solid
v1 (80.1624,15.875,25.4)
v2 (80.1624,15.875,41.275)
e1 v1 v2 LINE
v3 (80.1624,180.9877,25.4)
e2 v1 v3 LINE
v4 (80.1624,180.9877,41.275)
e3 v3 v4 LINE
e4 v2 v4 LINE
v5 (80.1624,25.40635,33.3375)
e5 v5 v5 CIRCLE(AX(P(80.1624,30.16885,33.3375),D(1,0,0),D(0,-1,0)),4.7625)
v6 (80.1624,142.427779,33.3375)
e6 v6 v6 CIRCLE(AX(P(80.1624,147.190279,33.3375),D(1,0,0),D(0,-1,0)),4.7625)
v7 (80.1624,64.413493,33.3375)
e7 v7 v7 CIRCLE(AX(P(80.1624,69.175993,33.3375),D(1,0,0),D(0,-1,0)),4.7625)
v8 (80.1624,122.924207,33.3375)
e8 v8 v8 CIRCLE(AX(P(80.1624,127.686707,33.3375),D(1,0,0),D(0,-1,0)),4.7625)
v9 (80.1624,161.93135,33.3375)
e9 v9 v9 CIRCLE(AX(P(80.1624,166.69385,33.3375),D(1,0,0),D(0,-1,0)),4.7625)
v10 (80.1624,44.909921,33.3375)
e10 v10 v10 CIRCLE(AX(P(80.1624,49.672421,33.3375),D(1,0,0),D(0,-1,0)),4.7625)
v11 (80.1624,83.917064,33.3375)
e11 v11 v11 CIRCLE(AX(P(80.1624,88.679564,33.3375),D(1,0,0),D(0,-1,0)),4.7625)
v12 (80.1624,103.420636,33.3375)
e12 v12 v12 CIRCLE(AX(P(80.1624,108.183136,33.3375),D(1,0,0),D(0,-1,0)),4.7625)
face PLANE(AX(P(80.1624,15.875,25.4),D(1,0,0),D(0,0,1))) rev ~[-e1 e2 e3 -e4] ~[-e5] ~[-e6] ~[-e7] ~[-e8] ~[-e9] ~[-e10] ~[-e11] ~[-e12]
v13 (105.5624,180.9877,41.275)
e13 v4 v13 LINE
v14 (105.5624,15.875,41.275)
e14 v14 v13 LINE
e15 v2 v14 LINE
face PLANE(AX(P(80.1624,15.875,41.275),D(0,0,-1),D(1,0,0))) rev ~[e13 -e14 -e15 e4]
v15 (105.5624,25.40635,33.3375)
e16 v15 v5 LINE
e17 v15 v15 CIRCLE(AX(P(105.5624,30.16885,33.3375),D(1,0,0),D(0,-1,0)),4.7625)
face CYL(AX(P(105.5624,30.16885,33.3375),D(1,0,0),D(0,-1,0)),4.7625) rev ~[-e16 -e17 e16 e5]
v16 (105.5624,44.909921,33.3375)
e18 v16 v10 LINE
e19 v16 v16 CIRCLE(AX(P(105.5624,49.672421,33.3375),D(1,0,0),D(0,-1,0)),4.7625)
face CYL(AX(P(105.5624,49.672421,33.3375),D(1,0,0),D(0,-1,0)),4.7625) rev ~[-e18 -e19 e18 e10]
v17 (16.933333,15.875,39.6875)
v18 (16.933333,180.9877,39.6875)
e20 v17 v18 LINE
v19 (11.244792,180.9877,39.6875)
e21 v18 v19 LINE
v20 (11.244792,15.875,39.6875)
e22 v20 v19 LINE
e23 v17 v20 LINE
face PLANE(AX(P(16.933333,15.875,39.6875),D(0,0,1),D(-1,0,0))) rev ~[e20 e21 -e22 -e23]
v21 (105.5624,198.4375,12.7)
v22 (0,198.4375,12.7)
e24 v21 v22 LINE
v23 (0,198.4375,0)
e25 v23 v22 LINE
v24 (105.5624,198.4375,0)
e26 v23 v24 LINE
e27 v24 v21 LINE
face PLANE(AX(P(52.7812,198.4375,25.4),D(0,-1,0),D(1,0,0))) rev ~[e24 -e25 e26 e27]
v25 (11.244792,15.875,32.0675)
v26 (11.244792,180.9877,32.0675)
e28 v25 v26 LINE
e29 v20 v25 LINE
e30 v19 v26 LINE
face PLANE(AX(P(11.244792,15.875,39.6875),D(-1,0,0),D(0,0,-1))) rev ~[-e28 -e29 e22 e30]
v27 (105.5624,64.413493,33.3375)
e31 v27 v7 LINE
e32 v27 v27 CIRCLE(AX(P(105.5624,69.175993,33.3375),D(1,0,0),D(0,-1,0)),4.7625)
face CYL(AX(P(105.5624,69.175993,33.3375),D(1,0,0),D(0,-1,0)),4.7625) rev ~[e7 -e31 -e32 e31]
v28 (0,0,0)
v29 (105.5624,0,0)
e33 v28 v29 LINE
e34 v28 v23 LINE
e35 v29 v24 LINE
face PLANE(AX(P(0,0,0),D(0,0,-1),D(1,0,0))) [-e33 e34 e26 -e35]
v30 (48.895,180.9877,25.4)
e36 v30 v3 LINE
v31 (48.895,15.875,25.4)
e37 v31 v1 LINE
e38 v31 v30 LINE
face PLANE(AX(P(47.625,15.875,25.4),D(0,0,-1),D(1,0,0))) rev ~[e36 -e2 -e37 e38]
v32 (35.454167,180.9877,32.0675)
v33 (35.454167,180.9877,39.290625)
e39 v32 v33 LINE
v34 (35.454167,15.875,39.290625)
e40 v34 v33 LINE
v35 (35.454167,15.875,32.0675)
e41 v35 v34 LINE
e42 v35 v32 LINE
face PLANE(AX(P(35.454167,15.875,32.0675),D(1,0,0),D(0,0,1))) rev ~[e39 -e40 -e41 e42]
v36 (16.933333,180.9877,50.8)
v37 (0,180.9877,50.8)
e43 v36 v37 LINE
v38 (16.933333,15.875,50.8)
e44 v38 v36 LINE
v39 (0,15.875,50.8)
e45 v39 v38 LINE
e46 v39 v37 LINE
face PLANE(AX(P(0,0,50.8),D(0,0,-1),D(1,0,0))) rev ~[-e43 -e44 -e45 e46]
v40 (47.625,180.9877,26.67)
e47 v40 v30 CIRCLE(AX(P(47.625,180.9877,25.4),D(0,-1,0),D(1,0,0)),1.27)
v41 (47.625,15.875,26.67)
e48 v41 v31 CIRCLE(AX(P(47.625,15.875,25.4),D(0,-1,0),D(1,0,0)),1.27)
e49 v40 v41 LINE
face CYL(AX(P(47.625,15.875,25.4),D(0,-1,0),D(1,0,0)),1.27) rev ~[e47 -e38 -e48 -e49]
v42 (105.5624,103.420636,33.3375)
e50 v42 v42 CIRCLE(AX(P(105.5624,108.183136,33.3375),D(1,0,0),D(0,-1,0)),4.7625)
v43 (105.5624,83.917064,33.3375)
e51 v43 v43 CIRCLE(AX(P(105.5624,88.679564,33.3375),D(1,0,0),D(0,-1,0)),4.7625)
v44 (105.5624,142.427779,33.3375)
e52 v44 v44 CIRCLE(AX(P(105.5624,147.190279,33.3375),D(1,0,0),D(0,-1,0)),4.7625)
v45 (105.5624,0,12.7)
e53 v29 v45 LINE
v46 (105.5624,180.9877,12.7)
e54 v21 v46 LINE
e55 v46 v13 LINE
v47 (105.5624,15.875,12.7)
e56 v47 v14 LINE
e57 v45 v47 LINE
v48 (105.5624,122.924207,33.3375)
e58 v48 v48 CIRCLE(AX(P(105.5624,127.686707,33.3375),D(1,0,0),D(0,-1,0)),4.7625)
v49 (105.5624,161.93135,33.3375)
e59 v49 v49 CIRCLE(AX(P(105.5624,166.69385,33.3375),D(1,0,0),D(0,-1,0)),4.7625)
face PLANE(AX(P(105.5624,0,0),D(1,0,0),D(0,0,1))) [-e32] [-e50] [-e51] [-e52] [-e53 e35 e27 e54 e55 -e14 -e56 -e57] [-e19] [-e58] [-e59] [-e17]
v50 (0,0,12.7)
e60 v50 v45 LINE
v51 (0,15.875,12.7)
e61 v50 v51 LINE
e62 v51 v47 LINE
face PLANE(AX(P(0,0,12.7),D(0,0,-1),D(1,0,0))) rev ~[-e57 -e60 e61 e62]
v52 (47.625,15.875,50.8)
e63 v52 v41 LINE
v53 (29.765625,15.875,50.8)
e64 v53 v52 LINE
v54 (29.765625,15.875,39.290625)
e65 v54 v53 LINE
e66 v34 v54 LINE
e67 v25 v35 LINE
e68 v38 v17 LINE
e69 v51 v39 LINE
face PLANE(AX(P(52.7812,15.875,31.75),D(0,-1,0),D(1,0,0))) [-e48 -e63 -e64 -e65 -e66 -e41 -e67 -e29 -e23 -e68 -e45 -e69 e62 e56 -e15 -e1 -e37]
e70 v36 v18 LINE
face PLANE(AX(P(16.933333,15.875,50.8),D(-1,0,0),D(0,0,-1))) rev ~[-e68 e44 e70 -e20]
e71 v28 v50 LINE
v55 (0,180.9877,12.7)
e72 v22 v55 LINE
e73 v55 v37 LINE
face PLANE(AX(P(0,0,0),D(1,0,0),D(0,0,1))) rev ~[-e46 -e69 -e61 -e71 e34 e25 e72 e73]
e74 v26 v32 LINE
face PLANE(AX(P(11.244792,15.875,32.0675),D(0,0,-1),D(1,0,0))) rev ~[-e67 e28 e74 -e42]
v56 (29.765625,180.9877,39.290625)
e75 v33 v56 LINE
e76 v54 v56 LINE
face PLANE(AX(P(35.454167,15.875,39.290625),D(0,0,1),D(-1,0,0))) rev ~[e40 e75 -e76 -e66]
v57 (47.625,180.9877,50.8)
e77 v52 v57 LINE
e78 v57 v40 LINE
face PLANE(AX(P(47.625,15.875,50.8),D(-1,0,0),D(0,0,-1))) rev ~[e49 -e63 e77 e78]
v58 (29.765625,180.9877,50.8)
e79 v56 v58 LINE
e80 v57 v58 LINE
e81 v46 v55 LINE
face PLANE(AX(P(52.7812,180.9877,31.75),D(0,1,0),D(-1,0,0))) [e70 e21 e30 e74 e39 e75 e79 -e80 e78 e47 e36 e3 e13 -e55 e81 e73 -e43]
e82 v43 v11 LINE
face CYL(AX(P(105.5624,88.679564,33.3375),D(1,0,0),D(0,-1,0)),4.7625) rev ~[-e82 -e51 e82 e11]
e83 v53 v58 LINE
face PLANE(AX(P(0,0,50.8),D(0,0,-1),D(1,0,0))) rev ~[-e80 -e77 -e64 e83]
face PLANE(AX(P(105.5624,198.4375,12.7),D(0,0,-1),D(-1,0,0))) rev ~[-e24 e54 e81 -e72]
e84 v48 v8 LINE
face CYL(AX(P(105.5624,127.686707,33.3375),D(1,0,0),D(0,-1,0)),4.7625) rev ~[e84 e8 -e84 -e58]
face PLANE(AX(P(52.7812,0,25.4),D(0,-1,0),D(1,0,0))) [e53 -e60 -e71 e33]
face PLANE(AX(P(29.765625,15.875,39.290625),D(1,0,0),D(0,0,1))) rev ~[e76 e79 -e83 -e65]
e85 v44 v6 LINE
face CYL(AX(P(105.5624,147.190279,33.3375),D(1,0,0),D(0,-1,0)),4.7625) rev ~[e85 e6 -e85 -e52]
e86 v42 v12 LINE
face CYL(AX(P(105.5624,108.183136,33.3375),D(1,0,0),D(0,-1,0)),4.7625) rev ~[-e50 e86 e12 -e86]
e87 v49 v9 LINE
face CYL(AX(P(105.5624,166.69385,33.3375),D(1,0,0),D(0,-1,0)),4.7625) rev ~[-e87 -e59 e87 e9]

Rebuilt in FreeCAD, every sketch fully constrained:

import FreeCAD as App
import Part
import Sketcher

V = App.Vector
Q = App.Units.Quantity


def add_polygon(sketch, points):
    """Adds a closed chain of lines whose ends are joined by coincident constraints."""
    first, n = sketch.GeometryCount, len(points)
    for a, b in zip(points, points[1:] + points[:1]):
        sketch.addGeometry(Part.LineSegment(App.Vector(*a, 0), App.Vector(*b, 0)), False)
    for i in range(n):
        sketch.addConstraint(Sketcher.Constraint("Coincident", first + i, 2, first + (i + 1) % n, 1))

doc = App.newDocument("Part")
body = doc.addObject("PartDesign::Body", "Body")

# Sketch on XZ plane
sketch1 = body.newObject("Sketcher::SketchObject", "Sketch")
sketch1.AttachmentSupport = (doc.getObject("XZ_Plane"), [""])
sketch1.MapMode = "FlatFace"
add_polygon(sketch1, [(0, 50.8), (0, 0), (105.5624, 0), (105.5624, 50.8)])  # lines 0-3
sketch1.addConstraint([
    Sketcher.Constraint("Vertical", 0),
    Sketcher.Constraint("Horizontal", 1),
    Sketcher.Constraint("Vertical", 2),
    Sketcher.Constraint("Horizontal", 3),
    Sketcher.Constraint("Coincident", 0, 2, -1, 1),
    Sketcher.Constraint("DistanceY", 0, 2, 0, 1, Q("2 in")),
    Sketcher.Constraint("DistanceX", 1, 1, 1, 2, Q("4.156 in")),
])
pad1 = body.newObject("PartDesign::Pad", "Pad")
pad1.Profile = sketch1
pad1.Length = Q("7.8125 in")
pad1.Reversed = True

# Sketch on XZ plane
sketch2 = body.newObject("Sketcher::SketchObject", "Sketch001")
sketch2.AttachmentSupport = (doc.getObject("XZ_Plane"), [""])
sketch2.MapMode = "FlatFace"
add_polygon(sketch2, [(0, 50.8), (0, 12.7), (105.5624, 12.7), (105.5624, 50.8)])  # lines 0-3
sketch2.addConstraint([
    Sketcher.Constraint("Vertical", 0),
    Sketcher.Constraint("Horizontal", 1),
    Sketcher.Constraint("Vertical", 2),
    Sketcher.Constraint("Horizontal", 3),
    Sketcher.Constraint("PointOnObject", 0, 2, -2),
    Sketcher.Constraint("DistanceY", 0, 2, 0, 1, Q("1.5 in")),
    Sketcher.Constraint("DistanceY", -1, 1, 2, 2, Q("2 in")),
    Sketcher.Constraint("DistanceX", 1, 1, 1, 2, Q("4.156 in")),
])
pocket1 = body.newObject("PartDesign::Pocket", "Pocket")
pocket1.Profile = sketch2
pocket1.Length = Q("0.625 in")

# Sketch on XZ plane
sketch3 = body.newObject("Sketcher::SketchObject", "Sketch002")
sketch3.AttachmentSupport = (doc.getObject("XZ_Plane"), [""])
sketch3.MapMode = "FlatFace"
sketch3.AttachmentOffset = App.Placement(V(0, 0, -0.625 * 25.4), App.Rotation())
add_polygon(sketch3, [(29.765625, 50.8), (16.933333, 50.8), (16.933333, 39.6875), (11.244792, 39.6875), (11.244792, 32.0675), (35.454167, 32.0675), (35.454167, 39.290625), (29.765625, 39.290625)])  # lines 0-7
add_polygon(sketch3, [(105.5624, 50.8), (47.625, 50.8), (47.625, 25.4), (80.1624, 25.4), (80.1624, 41.275), (105.5624, 41.275)])  # lines 8-13
sketch3.addConstraint([
    Sketcher.Constraint("Horizontal", 0),
    Sketcher.Constraint("Vertical", 1),
    Sketcher.Constraint("Horizontal", 2),
    Sketcher.Constraint("Vertical", 3),
    Sketcher.Constraint("Horizontal", 4),
    Sketcher.Constraint("Vertical", 5),
    Sketcher.Constraint("Horizontal", 6),
    Sketcher.Constraint("Vertical", 7),
    Sketcher.Constraint("Horizontal", 8),
    Sketcher.Constraint("Vertical", 9),
    Sketcher.Constraint("Horizontal", 10),
    Sketcher.Constraint("Vertical", 11),
    Sketcher.Constraint("Horizontal", 12),
    Sketcher.Constraint("Vertical", 13),
    Sketcher.Constraint("Horizontal", 7, 2, 8, 2),
    Sketcher.Constraint("Equal", 2, 6),
    Sketcher.Constraint("Equal", 12, 9),
    Sketcher.Constraint("DistanceX", 12, 1, 12, 2, Q("1 in")),
    Sketcher.Constraint("DistanceY", 3, 2, 3, 1, Q("0.3 in")),
    Sketcher.Constraint("DistanceY", -1, 1, 0, 2, Q("2 in")),
    Sketcher.Constraint("DistanceX", 4, 1, 4, 2, Q("0.953125 in")),
    Sketcher.Constraint("DistanceX", 8, 2, 8, 1, Q("2.281 in")),
    Sketcher.Constraint("DistanceY", 1, 2, 1, 1, Q("0.4375 in")),
    Sketcher.Constraint("DistanceY", 7, 1, 7, 2, Q("0.453125 in")),
    Sketcher.Constraint("DistanceY", 11, 1, 11, 2, Q("0.625 in")),
    Sketcher.Constraint("DistanceX", -1, 1, 6, 2, Q("1.171875 in")),
    Sketcher.Constraint("DistanceX", -1, 1, 8, 2, Q("1.875 in")),
    Sketcher.Constraint("DistanceX", 0, 2, 0, 1, 12.832292),
])
pocket2 = body.newObject("PartDesign::Pocket", "Pocket001")
pocket2.Profile = sketch3
pocket2.Type = "ThroughAll"

# Sketch on XZ plane
sketch4 = body.newObject("Sketcher::SketchObject", "Sketch003")
sketch4.AttachmentSupport = (doc.getObject("XZ_Plane"), [""])
sketch4.MapMode = "FlatFace"
sketch4.AttachmentOffset = App.Placement(V(0, 0, -7.8125 * 25.4), App.Rotation())
add_polygon(sketch4, [(105.5624, 50.8), (105.5624, 12.7), (0, 12.7), (0, 50.8)])  # lines 0-3
sketch4.addConstraint([
    Sketcher.Constraint("Vertical", 0),
    Sketcher.Constraint("Horizontal", 1),
    Sketcher.Constraint("Vertical", 2),
    Sketcher.Constraint("Horizontal", 3),
    Sketcher.Constraint("PointOnObject", 1, 2, -2),
    Sketcher.Constraint("DistanceY", 0, 2, 0, 1, Q("1.5 in")),
    Sketcher.Constraint("DistanceY", -1, 1, 2, 2, Q("2 in")),
    Sketcher.Constraint("DistanceX", 1, 2, 1, 1, Q("4.156 in")),
])
pocket3 = body.newObject("PartDesign::Pocket", "Pocket002")
pocket3.Profile = sketch4
pocket3.Length = Q("0.687 in")
pocket3.Reversed = True

# Sketch on YZ plane
sketch5 = body.newObject("Sketcher::SketchObject", "Sketch004")
sketch5.AttachmentSupport = (doc.getObject("YZ_Plane"), [""])
sketch5.MapMode = "FlatFace"
sketch5.AttachmentOffset = App.Placement(V(0, 0, 4.156 * 25.4), App.Rotation())
sketch5.addGeometry([
    Part.Circle(V(30.16885, 33.3375, 0), V(0, 0, 1), 4.7625),  # 0
    Part.Circle(V(166.69385, 33.3375, 0), V(0, 0, 1), 4.7625),  # 1
    Part.Circle(V(147.190279, 33.3375, 0), V(0, 0, 1), 4.7625),  # 2
    Part.Circle(V(127.686707, 33.3375, 0), V(0, 0, 1), 4.7625),  # 3
    Part.Circle(V(108.183136, 33.3375, 0), V(0, 0, 1), 4.7625),  # 4
    Part.Circle(V(88.679564, 33.3375, 0), V(0, 0, 1), 4.7625),  # 5
    Part.Circle(V(69.175993, 33.3375, 0), V(0, 0, 1), 4.7625),  # 6
    Part.Circle(V(49.672421, 33.3375, 0), V(0, 0, 1), 4.7625),  # 7
], False)
sketch5.addConstraint([
    Sketcher.Constraint("Equal", 0, 1),
    Sketcher.Constraint("Equal", 1, 2),
    Sketcher.Constraint("Equal", 2, 3),
    Sketcher.Constraint("Equal", 3, 4),
    Sketcher.Constraint("Equal", 4, 5),
    Sketcher.Constraint("Equal", 5, 6),
    Sketcher.Constraint("Equal", 6, 7),
    Sketcher.Constraint("Horizontal", 0, 3, 1, 3),
    Sketcher.Constraint("Horizontal", 1, 3, 2, 3),
    Sketcher.Constraint("Horizontal", 2, 3, 3, 3),
    Sketcher.Constraint("Horizontal", 3, 3, 4, 3),
    Sketcher.Constraint("Horizontal", 4, 3, 5, 3),
    Sketcher.Constraint("Horizontal", 5, 3, 6, 3),
    Sketcher.Constraint("Horizontal", 6, 3, 7, 3),
    Sketcher.Constraint("Diameter", 0, Q("0.375 in")),
    Sketcher.Constraint("DistanceY", -1, 1, 0, 3, Q("1.3125 in")),
    Sketcher.Constraint("DistanceX", 0, 3, 1, 3, Q("5.375 in")),
    Sketcher.Constraint("DistanceX", -1, 1, 0, 3, 30.16885),
    Sketcher.Constraint("DistanceX", -1, 1, 2, 3, 147.190279),
    Sketcher.Constraint("DistanceX", -1, 1, 7, 3, 49.672421),
    Sketcher.Constraint("DistanceX", 4, 3, 3, 3, 19.503571),
    Sketcher.Constraint("DistanceX", 6, 3, 5, 3, 19.503571),
    Sketcher.Constraint("DistanceX", -1, 1, 3, 3, 127.686707),
    Sketcher.Constraint("DistanceX", -1, 1, 5, 3, 88.679564),
])
pocket4 = body.newObject("PartDesign::Pocket", "Pocket003")
pocket4.Profile = sketch5
pocket4.Length = Q("1 in")

# Sketch on XZ plane
sketch6 = body.newObject("Sketcher::SketchObject", "Sketch005")
sketch6.AttachmentSupport = (doc.getObject("XZ_Plane"), [""])
sketch6.MapMode = "FlatFace"
sketch6.AttachmentOffset = App.Placement(V(0, 0, -0.625 * 25.4), App.Rotation())
sketch6.addGeometry(Part.Circle(V(47.625, 25.4, 0), V(0, 0, 1), 1.27), False)
sketch6.addConstraint([
    Sketcher.Constraint("Diameter", 0, Q("0.1 in")),
    Sketcher.Constraint("DistanceY", -1, 1, 0, 3, Q("1 in")),
    Sketcher.Constraint("DistanceX", -1, 1, 0, 3, Q("1.875 in")),
])
pocket5 = body.newObject("PartDesign::Pocket", "Pocket004")
pocket5.Profile = sketch6
pocket5.Type = "ThroughAll"

doc.recompute()
